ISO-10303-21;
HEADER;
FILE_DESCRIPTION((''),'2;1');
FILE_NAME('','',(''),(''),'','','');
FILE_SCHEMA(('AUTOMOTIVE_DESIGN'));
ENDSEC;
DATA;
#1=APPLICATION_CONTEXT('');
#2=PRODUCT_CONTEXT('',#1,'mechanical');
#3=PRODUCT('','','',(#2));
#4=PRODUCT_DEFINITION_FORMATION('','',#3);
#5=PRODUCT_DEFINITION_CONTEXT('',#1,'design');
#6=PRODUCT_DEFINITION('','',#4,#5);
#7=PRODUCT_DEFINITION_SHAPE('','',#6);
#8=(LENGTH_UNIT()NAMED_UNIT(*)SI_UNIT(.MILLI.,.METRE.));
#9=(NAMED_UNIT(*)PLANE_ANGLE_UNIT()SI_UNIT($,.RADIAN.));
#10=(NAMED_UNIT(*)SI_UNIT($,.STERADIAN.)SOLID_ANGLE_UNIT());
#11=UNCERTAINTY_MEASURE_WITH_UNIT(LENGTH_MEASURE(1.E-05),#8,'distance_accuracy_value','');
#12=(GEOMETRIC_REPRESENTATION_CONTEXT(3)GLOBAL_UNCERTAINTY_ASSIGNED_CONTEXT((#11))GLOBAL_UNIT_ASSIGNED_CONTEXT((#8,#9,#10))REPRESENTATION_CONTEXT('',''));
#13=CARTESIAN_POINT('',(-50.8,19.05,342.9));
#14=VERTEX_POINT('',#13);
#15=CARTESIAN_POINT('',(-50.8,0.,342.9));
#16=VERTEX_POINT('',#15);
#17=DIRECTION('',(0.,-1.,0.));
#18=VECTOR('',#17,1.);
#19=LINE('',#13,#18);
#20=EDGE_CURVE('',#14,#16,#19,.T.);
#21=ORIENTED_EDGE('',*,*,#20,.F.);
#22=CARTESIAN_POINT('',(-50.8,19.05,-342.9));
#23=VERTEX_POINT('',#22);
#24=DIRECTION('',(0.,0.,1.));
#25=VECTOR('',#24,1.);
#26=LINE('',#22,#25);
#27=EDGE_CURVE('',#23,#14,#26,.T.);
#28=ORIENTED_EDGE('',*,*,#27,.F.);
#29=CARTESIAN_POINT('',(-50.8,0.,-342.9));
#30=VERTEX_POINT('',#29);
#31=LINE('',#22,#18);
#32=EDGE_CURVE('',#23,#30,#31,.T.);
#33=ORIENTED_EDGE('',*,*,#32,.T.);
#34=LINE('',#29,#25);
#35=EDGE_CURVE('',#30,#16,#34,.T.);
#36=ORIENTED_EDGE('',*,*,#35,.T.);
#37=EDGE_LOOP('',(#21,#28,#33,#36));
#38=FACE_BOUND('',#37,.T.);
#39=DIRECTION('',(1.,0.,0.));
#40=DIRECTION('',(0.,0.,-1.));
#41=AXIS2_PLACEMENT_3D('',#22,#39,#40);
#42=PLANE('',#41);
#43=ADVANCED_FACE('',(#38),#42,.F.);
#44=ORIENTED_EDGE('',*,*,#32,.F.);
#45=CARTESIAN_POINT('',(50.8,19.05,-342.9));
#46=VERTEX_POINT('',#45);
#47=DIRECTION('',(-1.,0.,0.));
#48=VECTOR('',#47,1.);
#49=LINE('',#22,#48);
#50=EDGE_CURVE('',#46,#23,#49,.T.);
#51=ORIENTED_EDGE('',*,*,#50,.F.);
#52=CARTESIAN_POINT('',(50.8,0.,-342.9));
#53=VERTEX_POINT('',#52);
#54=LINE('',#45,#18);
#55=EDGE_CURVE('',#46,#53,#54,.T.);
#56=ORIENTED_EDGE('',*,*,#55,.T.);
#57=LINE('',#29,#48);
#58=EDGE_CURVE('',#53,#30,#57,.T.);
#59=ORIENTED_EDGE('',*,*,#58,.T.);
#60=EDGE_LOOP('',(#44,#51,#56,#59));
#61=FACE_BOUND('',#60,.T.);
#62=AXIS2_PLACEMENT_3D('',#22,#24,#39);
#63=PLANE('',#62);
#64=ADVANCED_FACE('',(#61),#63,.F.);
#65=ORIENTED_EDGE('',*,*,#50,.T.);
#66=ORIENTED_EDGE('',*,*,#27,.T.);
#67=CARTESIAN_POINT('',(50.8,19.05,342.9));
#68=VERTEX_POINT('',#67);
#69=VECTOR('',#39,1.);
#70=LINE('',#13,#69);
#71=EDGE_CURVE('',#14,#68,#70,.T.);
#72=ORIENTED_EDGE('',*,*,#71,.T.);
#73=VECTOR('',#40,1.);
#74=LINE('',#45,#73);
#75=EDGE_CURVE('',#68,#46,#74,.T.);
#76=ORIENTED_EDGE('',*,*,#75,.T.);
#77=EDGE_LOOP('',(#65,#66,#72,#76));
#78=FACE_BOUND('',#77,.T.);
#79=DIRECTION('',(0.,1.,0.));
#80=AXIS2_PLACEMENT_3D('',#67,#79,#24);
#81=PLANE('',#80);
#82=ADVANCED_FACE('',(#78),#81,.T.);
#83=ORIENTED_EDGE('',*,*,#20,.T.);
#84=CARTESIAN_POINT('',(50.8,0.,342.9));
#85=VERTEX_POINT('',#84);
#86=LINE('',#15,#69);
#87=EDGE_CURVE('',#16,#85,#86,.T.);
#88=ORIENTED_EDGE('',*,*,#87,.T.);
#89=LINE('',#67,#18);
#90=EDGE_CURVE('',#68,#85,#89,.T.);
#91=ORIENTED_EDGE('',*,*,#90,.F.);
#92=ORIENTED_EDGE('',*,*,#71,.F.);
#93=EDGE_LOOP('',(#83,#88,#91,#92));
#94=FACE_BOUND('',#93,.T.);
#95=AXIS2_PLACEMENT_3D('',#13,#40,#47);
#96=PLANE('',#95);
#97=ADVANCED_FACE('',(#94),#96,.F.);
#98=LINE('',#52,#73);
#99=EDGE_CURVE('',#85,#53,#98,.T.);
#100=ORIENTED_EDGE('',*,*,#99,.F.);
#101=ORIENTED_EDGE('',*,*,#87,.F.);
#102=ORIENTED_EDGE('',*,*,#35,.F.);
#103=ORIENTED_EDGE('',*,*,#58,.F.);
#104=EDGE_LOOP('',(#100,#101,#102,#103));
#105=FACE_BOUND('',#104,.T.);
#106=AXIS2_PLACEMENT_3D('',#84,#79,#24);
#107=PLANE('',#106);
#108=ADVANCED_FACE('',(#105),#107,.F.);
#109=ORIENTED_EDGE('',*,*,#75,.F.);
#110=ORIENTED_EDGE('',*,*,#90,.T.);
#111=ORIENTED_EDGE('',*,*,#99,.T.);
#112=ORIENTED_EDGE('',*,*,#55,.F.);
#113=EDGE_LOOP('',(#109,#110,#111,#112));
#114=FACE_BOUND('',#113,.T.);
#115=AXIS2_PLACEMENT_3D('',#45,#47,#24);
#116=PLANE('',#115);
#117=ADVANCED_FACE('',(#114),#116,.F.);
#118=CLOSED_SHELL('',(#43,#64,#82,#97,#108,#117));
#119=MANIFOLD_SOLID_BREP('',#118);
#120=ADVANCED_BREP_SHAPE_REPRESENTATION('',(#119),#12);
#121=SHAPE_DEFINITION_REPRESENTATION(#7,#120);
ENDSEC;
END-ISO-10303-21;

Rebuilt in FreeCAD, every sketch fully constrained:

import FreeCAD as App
import Part
import Sketcher
Q = App.Units.Quantity


def add_polygon(sketch, points):
    """Adds a closed chain of lines whose ends are joined by coincident constraints."""
    first, n = sketch.GeometryCount, len(points)
    for a, b in zip(points, points[1:] + points[:1]):
        sketch.addGeometry(Part.LineSegment(App.Vector(*a, 0), App.Vector(*b, 0)), False)
    for i in range(n):
        sketch.addConstraint(Sketcher.Constraint("Coincident", first + i, 2, first + (i + 1) % n, 1))

doc = App.newDocument("Part")
body = doc.addObject("PartDesign::Body", "Body")

# Sketch on XZ plane
sketch1 = body.newObject("Sketcher::SketchObject", "Sketch")
sketch1.AttachmentSupport = (doc.getObject("XZ_Plane"), [""])
sketch1.MapMode = "FlatFace"
add_polygon(sketch1, [(-50.8, -342.9), (-50.8, 342.9), (50.8, 342.9), (50.8, -342.9)])  # lines 0-3
sketch1.addConstraint([
    Sketcher.Constraint("Vertical", 0),
    Sketcher.Constraint("Horizontal", 1),
    Sketcher.Constraint("Vertical", 2),
    Sketcher.Constraint("Horizontal", 3),
    Sketcher.Constraint("Symmetric", 0, 2, 2, 2, -1, 1),
    Sketcher.Constraint("DistanceX", 1, 1, 1, 2, Q("4 in")),
    Sketcher.Constraint("DistanceY", 0, 1, 0, 2, Q("27 in")),
])
pad1 = body.newObject("PartDesign::Pad", "Pad")
pad1.Profile = sketch1
pad1.Length = Q("0.75 in")
pad1.Reversed = True

doc.recompute()
